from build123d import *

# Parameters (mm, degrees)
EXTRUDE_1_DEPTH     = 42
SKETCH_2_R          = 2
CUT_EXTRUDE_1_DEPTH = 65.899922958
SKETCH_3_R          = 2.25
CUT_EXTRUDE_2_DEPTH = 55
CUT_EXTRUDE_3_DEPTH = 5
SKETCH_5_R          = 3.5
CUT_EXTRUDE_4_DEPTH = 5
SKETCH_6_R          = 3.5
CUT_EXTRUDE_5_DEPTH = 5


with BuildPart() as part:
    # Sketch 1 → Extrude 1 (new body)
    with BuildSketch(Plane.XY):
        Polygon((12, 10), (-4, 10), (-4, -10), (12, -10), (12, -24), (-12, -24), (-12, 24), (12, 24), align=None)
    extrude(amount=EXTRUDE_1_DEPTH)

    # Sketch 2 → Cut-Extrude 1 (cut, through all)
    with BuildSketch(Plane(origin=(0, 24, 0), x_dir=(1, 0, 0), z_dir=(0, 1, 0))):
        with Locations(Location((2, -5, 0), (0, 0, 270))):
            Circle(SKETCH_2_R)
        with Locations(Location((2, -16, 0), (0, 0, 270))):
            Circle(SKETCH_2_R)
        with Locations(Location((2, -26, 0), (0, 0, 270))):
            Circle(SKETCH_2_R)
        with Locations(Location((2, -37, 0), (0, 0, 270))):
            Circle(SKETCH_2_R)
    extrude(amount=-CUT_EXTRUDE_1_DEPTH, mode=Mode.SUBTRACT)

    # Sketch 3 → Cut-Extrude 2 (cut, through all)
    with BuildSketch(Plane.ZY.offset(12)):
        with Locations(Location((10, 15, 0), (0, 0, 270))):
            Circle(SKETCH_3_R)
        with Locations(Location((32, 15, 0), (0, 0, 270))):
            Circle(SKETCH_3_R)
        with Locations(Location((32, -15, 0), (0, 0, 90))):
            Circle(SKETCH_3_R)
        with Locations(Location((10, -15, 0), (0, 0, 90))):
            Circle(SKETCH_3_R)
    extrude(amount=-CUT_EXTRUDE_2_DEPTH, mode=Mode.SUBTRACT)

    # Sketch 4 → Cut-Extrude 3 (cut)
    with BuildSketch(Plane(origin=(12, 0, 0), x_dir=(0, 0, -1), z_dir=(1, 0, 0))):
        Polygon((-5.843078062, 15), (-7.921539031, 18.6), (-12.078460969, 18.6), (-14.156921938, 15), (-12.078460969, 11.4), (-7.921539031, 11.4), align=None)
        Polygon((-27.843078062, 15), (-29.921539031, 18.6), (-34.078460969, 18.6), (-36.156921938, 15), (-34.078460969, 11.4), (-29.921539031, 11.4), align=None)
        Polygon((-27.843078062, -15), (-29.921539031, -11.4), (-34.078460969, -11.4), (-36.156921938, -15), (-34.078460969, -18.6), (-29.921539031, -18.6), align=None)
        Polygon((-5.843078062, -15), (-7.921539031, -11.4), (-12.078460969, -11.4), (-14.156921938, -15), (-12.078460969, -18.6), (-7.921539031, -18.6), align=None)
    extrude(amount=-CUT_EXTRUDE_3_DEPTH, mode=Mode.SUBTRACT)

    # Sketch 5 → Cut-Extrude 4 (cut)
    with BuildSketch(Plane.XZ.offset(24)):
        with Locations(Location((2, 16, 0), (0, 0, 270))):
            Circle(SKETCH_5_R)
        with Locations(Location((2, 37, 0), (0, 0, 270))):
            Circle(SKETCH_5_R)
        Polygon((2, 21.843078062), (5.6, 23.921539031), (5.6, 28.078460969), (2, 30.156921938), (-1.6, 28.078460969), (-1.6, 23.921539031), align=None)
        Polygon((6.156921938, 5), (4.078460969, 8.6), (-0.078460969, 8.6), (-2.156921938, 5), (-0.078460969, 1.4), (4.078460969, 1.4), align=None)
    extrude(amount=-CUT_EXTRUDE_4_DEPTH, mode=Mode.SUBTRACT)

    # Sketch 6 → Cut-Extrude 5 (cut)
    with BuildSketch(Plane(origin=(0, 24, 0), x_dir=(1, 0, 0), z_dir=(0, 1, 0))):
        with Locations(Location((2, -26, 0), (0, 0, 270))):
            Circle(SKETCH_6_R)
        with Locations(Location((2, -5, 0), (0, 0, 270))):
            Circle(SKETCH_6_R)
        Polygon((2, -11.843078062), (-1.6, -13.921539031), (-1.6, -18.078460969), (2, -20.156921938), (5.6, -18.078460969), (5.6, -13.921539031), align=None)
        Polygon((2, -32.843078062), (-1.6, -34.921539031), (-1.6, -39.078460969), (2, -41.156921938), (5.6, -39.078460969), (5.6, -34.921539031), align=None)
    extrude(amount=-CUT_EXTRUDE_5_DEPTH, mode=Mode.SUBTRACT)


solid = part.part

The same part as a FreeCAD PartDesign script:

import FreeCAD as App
import Part
import Sketcher

V = App.Vector
Q = App.Units.Quantity

doc = App.newDocument("Part")
params = doc.addObject("Spreadsheet::Sheet", "Params")
for row, (alias, value) in enumerate([
    ("sketch1_width", "16 mm"),
    ("sketch1_width2", "24 mm"),
    ("sketch1_height", "14 mm"),
    ("sketch1_height2", "48 mm"),
    ("pad1_length", "42 mm"),
    ("sketch2_diameter", "4 mm"),
    ("sketch3_diameter", "4.5 mm"),
    ("pocket3_length", "5 mm"),
    ("sketch5_diameter", "7 mm"),
    ("pocket4_length", "5 mm"),
    ("sketch6_diameter", "7 mm"),
    ("pocket5_length", "5 mm"),
], start=1):
    params.set(f"A{row}", alias)
    params.set(f"B{row}", "=" + value)
    params.setAlias(f"B{row}", alias)

body = doc.addObject("PartDesign::Body", "Body")

# Sketch on XY plane
sketch1 = body.newObject("Sketcher::SketchObject", "Sketch")
sketch1.AttachmentSupport = (doc.getObject("XY_Plane"), [""])
sketch1.MapMode = "FlatFace"
sketch1.addGeometry(Part.LineSegment(V(-4, 10, 0), V(12, 10, 0)), False)
sketch1.addGeometry(Part.LineSegment(V(12, 10, 0), V(12, 24, 0)), False)
sketch1.addGeometry(Part.LineSegment(V(12, 24, 0), V(-12, 24, 0)), False)
sketch1.addGeometry(Part.LineSegment(V(-12, 24, 0), V(-12, -24, 0)), False)
sketch1.addGeometry(Part.LineSegment(V(-12, -24, 0), V(12, -24, 0)), False)
sketch1.addGeometry(Part.LineSegment(V(12, -24, 0), V(12, -10, 0)), False)
sketch1.addGeometry(Part.LineSegment(V(12, -10, 0), V(-4, -10, 0)), False)
sketch1.addGeometry(Part.LineSegment(V(-4, -10, 0), V(-4, 10, 0)), False)
sketch1.addConstraint(Sketcher.Constraint("Coincident", 0, 2, 1, 1))
sketch1.addConstraint(Sketcher.Constraint("Coincident", 1, 2, 2, 1))
sketch1.addConstraint(Sketcher.Constraint("Coincident", 2, 2, 3, 1))
sketch1.addConstraint(Sketcher.Constraint("Coincident", 3, 2, 4, 1))
sketch1.addConstraint(Sketcher.Constraint("Coincident", 4, 2, 5, 1))
sketch1.addConstraint(Sketcher.Constraint("Coincident", 5, 2, 6, 1))
sketch1.addConstraint(Sketcher.Constraint("Coincident", 6, 2, 7, 1))
sketch1.addConstraint(Sketcher.Constraint("Coincident", 7, 2, 0, 1))
sketch1.addConstraint(Sketcher.Constraint("Horizontal", 0))
sketch1.addConstraint(Sketcher.Constraint("Vertical", 1))
sketch1.addConstraint(Sketcher.Constraint("Horizontal", 2))
sketch1.addConstraint(Sketcher.Constraint("Vertical", 3))
sketch1.addConstraint(Sketcher.Constraint("Horizontal", 4))
sketch1.addConstraint(Sketcher.Constraint("Vertical", 5))
sketch1.addConstraint(Sketcher.Constraint("Horizontal", 6))
sketch1.addConstraint(Sketcher.Constraint("Vertical", 7))
sketch1.addConstraint(Sketcher.Constraint("Symmetric", 1, 2, 3, 2, -1, 1))
sketch1.addConstraint(Sketcher.Constraint("Symmetric", 0, 2, 5, 2, -1))
sketch1.addConstraint(Sketcher.Constraint("DistanceX", 0, 1, 0, 2, Q("16 mm")))
sketch1.addConstraint(Sketcher.Constraint("DistanceX", 2, 2, 2, 1, Q("24 mm")))
sketch1.addConstraint(Sketcher.Constraint("DistanceY", 1, 1, 1, 2, Q("14 mm")))
sketch1.addConstraint(Sketcher.Constraint("DistanceY", 3, 2, 3, 1, Q("48 mm")))
sketch1.setExpression("Constraints[18]", "Params.sketch1_width")
sketch1.setExpression("Constraints[19]", "Params.sketch1_width2")
sketch1.setExpression("Constraints[20]", "Params.sketch1_height")
sketch1.setExpression("Constraints[21]", "Params.sketch1_height2")
pad1 = body.newObject("PartDesign::Pad", "Pad")
pad1.Profile = sketch1
pad1.setExpression("Length", "Params.pad1_length")

# Sketch on XZ plane
sketch2 = body.newObject("Sketcher::SketchObject", "Sketch001")
sketch2.AttachmentSupport = (doc.getObject("XZ_Plane"), [""])
sketch2.MapMode = "FlatFace"
sketch2.AttachmentOffset = App.Placement(V(0, 0, -24), App.Rotation())
sketch2.addGeometry(Part.Circle(V(2, 5, 0), V(0, 0, 1), 2), False)
sketch2.addGeometry(Part.Circle(V(2, 16, 0), V(0, 0, 1), 2), False)
sketch2.addGeometry(Part.Circle(V(2, 26, 0), V(0, 0, 1), 2), False)
sketch2.addGeometry(Part.Circle(V(2, 37, 0), V(0, 0, 1), 2), False)
sketch2.addConstraint(Sketcher.Constraint("Equal", 0, 1))
sketch2.addConstraint(Sketcher.Constraint("Equal", 1, 2))
sketch2.addConstraint(Sketcher.Constraint("Equal", 2, 3))
sketch2.addConstraint(Sketcher.Constraint("Vertical", 0, 3, 1, 3))
sketch2.addConstraint(Sketcher.Constraint("Vertical", 1, 3, 2, 3))
sketch2.addConstraint(Sketcher.Constraint("Vertical", 2, 3, 3, 3))
sketch2.addConstraint(Sketcher.Constraint("Diameter", 0, Q("4 mm")))
sketch2.addConstraint(Sketcher.Constraint("DistanceX", -1, 1, 0, 3, Q("2 mm")))
sketch2.addConstraint(Sketcher.Constraint("DistanceY", -1, 1, 0, 3, Q("5 mm")))
sketch2.addConstraint(Sketcher.Constraint("DistanceY", -1, 1, 1, 3, Q("16 mm")))
sketch2.addConstraint(Sketcher.Constraint("DistanceY", -1, 1, 2, 3, Q("26 mm")))
sketch2.addConstraint(Sketcher.Constraint("DistanceY", -1, 1, 3, 3, Q("37 mm")))
sketch2.setExpression("Constraints[6]", "Params.sketch2_diameter")
pocket1 = body.newObject("PartDesign::Pocket", "Pocket")
pocket1.Profile = sketch2
pocket1.Type = "ThroughAll"
pocket1.Reversed = True

# Sketch on YZ plane
sketch3 = body.newObject("Sketcher::SketchObject", "Sketch002")
sketch3.AttachmentSupport = (doc.getObject("YZ_Plane"), [""])
sketch3.MapMode = "FlatFace"
sketch3.AttachmentOffset = App.Placement(V(0, 0, -12), App.Rotation())
sketch3.addGeometry(Part.Circle(V(15, 10, 0), V(0, 0, 1), 2.2), False)
sketch3.addGeometry(Part.Circle(V(15, 32, 0), V(0, 0, 1), 2.2), False)
sketch3.addGeometry(Part.Circle(V(-15, 32, 0), V(0, 0, 1), 2.2), False)
sketch3.addGeometry(Part.Circle(V(-15, 10, 0), V(0, 0, 1), 2.2), False)
sketch3.addConstraint(Sketcher.Constraint("Equal", 0, 1))
sketch3.addConstraint(Sketcher.Constraint("Equal", 1, 2))
sketch3.addConstraint(Sketcher.Constraint("Equal", 2, 3))
sketch3.addConstraint(Sketcher.Constraint("Symmetric", 1, 3, 2, 3, -2))
sketch3.addConstraint(Sketcher.Constraint("Symmetric", 0, 3, 3, 3, -2))
sketch3.addConstraint(Sketcher.Constraint("Vertical", 0, 3, 1, 3))
sketch3.addConstraint(Sketcher.Constraint("Diameter", 0, Q("4.5 mm")))
sketch3.addConstraint(Sketcher.Constraint("DistanceX", -1, 1, 0, 3, Q("15 mm")))
sketch3.addConstraint(Sketcher.Constraint("DistanceY", -1, 1, 0, 3, Q("10 mm")))
sketch3.addConstraint(Sketcher.Constraint("DistanceY", -1, 1, 1, 3, Q("32 mm")))
sketch3.setExpression("Constraints[6]", "Params.sketch3_diameter")
pocket2 = body.newObject("PartDesign::Pocket", "Pocket001")
pocket2.Profile = sketch3
pocket2.Type = "ThroughAll"
pocket2.Reversed = True

# Sketch on YZ plane
sketch4 = body.newObject("Sketcher::SketchObject", "Sketch003")
sketch4.AttachmentSupport = (doc.getObject("YZ_Plane"), [""])
sketch4.MapMode = "FlatFace"
sketch4.AttachmentOffset = App.Placement(V(0, 0, 12), App.Rotation())
sketch4.addGeometry(Part.LineSegment(V(15, 5.8, 0), V(18.6, 7.9, 0)), False)
sketch4.addGeometry(Part.LineSegment(V(18.6, 7.9, 0), V(18.6, 12.1, 0)), False)
sketch4.addGeometry(Part.LineSegment(V(18.6, 12.1, 0), V(15, 14.2, 0)), False)
sketch4.addGeometry(Part.LineSegment(V(15, 14.2, 0), V(11.4, 12.1, 0)), False)
sketch4.addGeometry(Part.LineSegment(V(11.4, 12.1, 0), V(11.4, 7.9, 0)), False)
sketch4.addGeometry(Part.LineSegment(V(11.4, 7.9, 0), V(15, 5.8, 0)), False)
sketch4.addGeometry(Part.LineSegment(V(15, 27.8, 0), V(18.6, 29.9, 0)), False)
sketch4.addGeometry(Part.LineSegment(V(18.6, 29.9, 0), V(18.6, 34.1, 0)), False)
sketch4.addGeometry(Part.LineSegment(V(18.6, 34.1, 0), V(15, 36.2, 0)), False)
sketch4.addGeometry(Part.LineSegment(V(15, 36.2, 0), V(11.4, 34.1, 0)), False)
sketch4.addGeometry(Part.LineSegment(V(11.4, 34.1, 0), V(11.4, 29.9, 0)), False)
sketch4.addGeometry(Part.LineSegment(V(11.4, 29.9, 0), V(15, 27.8, 0)), False)
sketch4.addGeometry(Part.LineSegment(V(-15, 27.8, 0), V(-11.4, 29.9, 0)), False)
sketch4.addGeometry(Part.LineSegment(V(-11.4, 29.9, 0), V(-11.4, 34.1, 0)), False)
sketch4.addGeometry(Part.LineSegment(V(-11.4, 34.1, 0), V(-15, 36.2, 0)), False)
sketch4.addGeometry(Part.LineSegment(V(-15, 36.2, 0), V(-18.6, 34.1, 0)), False)
sketch4.addGeometry(Part.LineSegment(V(-18.6, 34.1, 0), V(-18.6, 29.9, 0)), False)
sketch4.addGeometry(Part.LineSegment(V(-18.6, 29.9, 0), V(-15, 27.8, 0)), False)
sketch4.addGeometry(Part.LineSegment(V(-15, 5.8, 0), V(-11.4, 7.9, 0)), False)
sketch4.addGeometry(Part.LineSegment(V(-11.4, 7.9, 0), V(-11.4, 12.1, 0)), False)
sketch4.addGeometry(Part.LineSegment(V(-11.4, 12.1, 0), V(-15, 14.2, 0)), False)
sketch4.addGeometry(Part.LineSegment(V(-15, 14.2, 0), V(-18.6, 12.1, 0)), False)
sketch4.addGeometry(Part.LineSegment(V(-18.6, 12.1, 0), V(-18.6, 7.9, 0)), False)
sketch4.addGeometry(Part.LineSegment(V(-18.6, 7.9, 0), V(-15, 5.8, 0)), False)
sketch4.addConstraint(Sketcher.Constraint("Coincident", 0, 2, 1, 1))
sketch4.addConstraint(Sketcher.Constraint("Coincident", 1, 2, 2, 1))
sketch4.addConstraint(Sketcher.Constraint("Coincident", 2, 2, 3, 1))
sketch4.addConstraint(Sketcher.Constraint("Coincident", 3, 2, 4, 1))
sketch4.addConstraint(Sketcher.Constraint("Coincident", 4, 2, 5, 1))
sketch4.addConstraint(Sketcher.Constraint("Coincident", 5, 2, 0, 1))
sketch4.addConstraint(Sketcher.Constraint("Coincident", 6, 2, 7, 1))
sketch4.addConstraint(Sketcher.Constraint("Coincident", 7, 2, 8, 1))
sketch4.addConstraint(Sketcher.Constraint("Coincident", 8, 2, 9, 1))
sketch4.addConstraint(Sketcher.Constraint("Coincident", 9, 2, 10, 1))
sketch4.addConstraint(Sketcher.Constraint("Coincident", 10, 2, 11, 1))
sketch4.addConstraint(Sketcher.Constraint("Coincident", 11, 2, 6, 1))
sketch4.addConstraint(Sketcher.Constraint("Coincident", 12, 2, 13, 1))
sketch4.addConstraint(Sketcher.Constraint("Coincident", 13, 2, 14, 1))
sketch4.addConstraint(Sketcher.Constraint("Coincident", 14, 2, 15, 1))
sketch4.addConstraint(Sketcher.Constraint("Coincident", 15, 2, 16, 1))
sketch4.addConstraint(Sketcher.Constraint("Coincident", 16, 2, 17, 1))
sketch4.addConstraint(Sketcher.Constraint("Coincident", 17, 2, 12, 1))
sketch4.addConstraint(Sketcher.Constraint("Coincident", 18, 2, 19, 1))
sketch4.addConstraint(Sketcher.Constraint("Coincident", 19, 2, 20, 1))
sketch4.addConstraint(Sketcher.Constraint("Coincident", 20, 2, 21, 1))
sketch4.addConstraint(Sketcher.Constraint("Coincident", 21, 2, 22, 1))
sketch4.addConstraint(Sketcher.Constraint("Coincident", 22, 2, 23, 1))
sketch4.addConstraint(Sketcher.Constraint("Coincident", 23, 2, 18, 1))
sketch4.addConstraint(Sketcher.Constraint("Vertical", 1))
sketch4.addConstraint(Sketcher.Constraint("Vertical", 4))
sketch4.addConstraint(Sketcher.Constraint("Vertical", 7))
sketch4.addConstraint(Sketcher.Constraint("Vertical", 10))
sketch4.addConstraint(Sketcher.Constraint("Vertical", 13))
sketch4.addConstraint(Sketcher.Constraint("Vertical", 16))
sketch4.addConstraint(Sketcher.Constraint("Vertical", 19))
sketch4.addConstraint(Sketcher.Constraint("Vertical", 22))
sketch4.addConstraint(Sketcher.Constraint("Symmetric", 10, 2, 12, 2, -2))
sketch4.addConstraint(Sketcher.Constraint("Symmetric", 8, 2, 14, 2, -2))
sketch4.addConstraint(Sketcher.Constraint("Symmetric", 7, 2, 15, 2, -2))
sketch4.addConstraint(Sketcher.Constraint("Symmetric", 11, 2, 17, 2, -2))
sketch4.addConstraint(Sketcher.Constraint("Symmetric", 4, 2, 18, 2, -2))
sketch4.addConstraint(Sketcher.Constraint("Symmetric", 2, 2, 20, 2, -2))
sketch4.addConstraint(Sketcher.Constraint("Symmetric", 1, 2, 21, 2, -2))
sketch4.addConstraint(Sketcher.Constraint("Symmetric", 5, 2, 23, 2, -2))
sketch4.addConstraint(Sketcher.Constraint("Parallel", 0, 3))
sketch4.addConstraint(Sketcher.Constraint("Parallel", 2, 5))
sketch4.addConstraint(Sketcher.Constraint("Parallel", 3, 6))
sketch4.addConstraint(Sketcher.Constraint("Parallel", 5, 8))
sketch4.addConstraint(Sketcher.Constraint("Parallel", 6, 9))
sketch4.addConstraint(Sketcher.Constraint("Parallel", 8, 11))
sketch4.addConstraint(Sketcher.Constraint("Parallel", 9, 12))
sketch4.addConstraint(Sketcher.Constraint("Parallel", 11, 14))
sketch4.addConstraint(Sketcher.Constraint("Parallel", 14, 17))
sketch4.addConstraint(Sketcher.Constraint("Parallel", 17, 20))
sketch4.addConstraint(Sketcher.Constraint("Parallel", 20, 23))
sketch4.addConstraint(Sketcher.Constraint("Horizontal", 1, 2, 3, 2))
sketch4.addConstraint(Sketcher.Constraint("Horizontal", 0, 2, 4, 2))
sketch4.addConstraint(Sketcher.Constraint("Horizontal", 7, 2, 9, 2))
sketch4.addConstraint(Sketcher.Constraint("Horizontal", 6, 2, 10, 2))
sketch4.addConstraint(Sketcher.Constraint("Vertical", 1, 2, 6, 2))
sketch4.addConstraint(Sketcher.Constraint("Vertical", 5, 2, 8, 2))
sketch4.addConstraint(Sketcher.Constraint("Equal", 4, 7))
sketch4.addConstraint(Sketcher.Constraint("Angle", 0, Q("30 deg")))
sketch4.addConstraint(Sketcher.Constraint("DistanceX", -1, 1, 2, 2, Q("15 mm")))
sketch4.addConstraint(Sketcher.Constraint("DistanceY", 0, 2, 6, 2, Q("22 mm")))
sketch4.addConstraint(Sketcher.Constraint("DistanceX", -1, 1, 0, 2, Q("18.6 mm")))
sketch4.addConstraint(Sketcher.Constraint("DistanceY", 1, 1, 1, 2, Q("4.156922 mm")))
sketch4.addConstraint(Sketcher.Constraint("DistanceY", -1, 1, 0, 2, Q("7.921539 mm")))
pocket3 = body.newObject("PartDesign::Pocket", "Pocket002")
pocket3.Profile = sketch4
pocket3.setExpression("Length", "Params.pocket3_length")

# Sketch on XZ plane
sketch5 = body.newObject("Sketcher::SketchObject", "Sketch004")
sketch5.AttachmentSupport = (doc.getObject("XZ_Plane"), [""])
sketch5.MapMode = "FlatFace"
sketch5.AttachmentOffset = App.Placement(V(0, 0, 24), App.Rotation())
sketch5.addGeometry(Part.Circle(V(2, 16, 0), V(0, 0, 1), 3.5), False)
sketch5.addGeometry(Part.Circle(V(2, 37, 0), V(0, 0, 1), 3.5), False)
sketch5.addGeometry(Part.LineSegment(V(2, 21.8, 0), V(5.6, 23.9, 0)), False)
sketch5.addGeometry(Part.LineSegment(V(5.6, 23.9, 0), V(5.6, 28.1, 0)), False)
sketch5.addGeometry(Part.LineSegment(V(5.6, 28.1, 0), V(2, 30.2, 0)), False)
sketch5.addGeometry(Part.LineSegment(V(2, 30.2, 0), V(-1.6, 28.1, 0)), False)
sketch5.addGeometry(Part.LineSegment(V(-1.6, 28.1, 0), V(-1.6, 23.9, 0)), False)
sketch5.addGeometry(Part.LineSegment(V(-1.6, 23.9, 0), V(2, 21.8, 0)), False)
sketch5.addGeometry(Part.LineSegment(V(6.2, 5, 0), V(4.1, 8.6, 0)), False)
sketch5.addGeometry(Part.LineSegment(V(4.1, 8.6, 0), V(-0.1, 8.6, 0)), False)
sketch5.addGeometry(Part.LineSegment(V(-0.1, 8.6, 0), V(-2.2, 5, 0)), False)
sketch5.addGeometry(Part.LineSegment(V(-2.2, 5, 0), V(-0.1, 1.4, 0)), False)
sketch5.addGeometry(Part.LineSegment(V(-0.1, 1.4, 0), V(4.1, 1.4, 0)), False)
sketch5.addGeometry(Part.LineSegment(V(4.1, 1.4, 0), V(6.2, 5, 0)), False)
sketch5.addConstraint(Sketcher.Constraint("Coincident", 2, 2, 3, 1))
sketch5.addConstraint(Sketcher.Constraint("Coincident", 3, 2, 4, 1))
sketch5.addConstraint(Sketcher.Constraint("Coincident", 4, 2, 5, 1))
sketch5.addConstraint(Sketcher.Constraint("Coincident", 5, 2, 6, 1))
sketch5.addConstraint(Sketcher.Constraint("Coincident", 6, 2, 7, 1))
sketch5.addConstraint(Sketcher.Constraint("Coincident", 7, 2, 2, 1))
sketch5.addConstraint(Sketcher.Constraint("Coincident", 8, 2, 9, 1))
sketch5.addConstraint(Sketcher.Constraint("Coincident", 9, 2, 10, 1))
sketch5.addConstraint(Sketcher.Constraint("Coincident", 10, 2, 11, 1))
sketch5.addConstraint(Sketcher.Constraint("Coincident", 11, 2, 12, 1))
sketch5.addConstraint(Sketcher.Constraint("Coincident", 12, 2, 13, 1))
sketch5.addConstraint(Sketcher.Constraint("Coincident", 13, 2, 8, 1))
sketch5.addConstraint(Sketcher.Constraint("Vertical", 3))
sketch5.addConstraint(Sketcher.Constraint("Vertical", 6))
sketch5.addConstraint(Sketcher.Constraint("Horizontal", 9))
sketch5.addConstraint(Sketcher.Constraint("Horizontal", 12))
sketch5.addConstraint(Sketcher.Constraint("Equal", 0, 1))
sketch5.addConstraint(Sketcher.Constraint("Parallel", 2, 5))
sketch5.addConstraint(Sketcher.Constraint("Parallel", 4, 7))
sketch5.addConstraint(Sketcher.Constraint("Perpendicular", 5, 8))
sketch5.addConstraint(Sketcher.Constraint("Perpendicular", 7, 10))
sketch5.addConstraint(Sketcher.Constraint("Parallel", 8, 11))
sketch5.addConstraint(Sketcher.Constraint("Parallel", 10, 13))
sketch5.addConstraint(Sketcher.Constraint("Horizontal", 3, 2, 5, 2))
sketch5.addConstraint(Sketcher.Constraint("Horizontal", 2, 2, 6, 2))
sketch5.addConstraint(Sketcher.Constraint("Horizontal", 10, 2, 13, 2))
sketch5.addConstraint(Sketcher.Constraint("Vertical", 0, 3, 1, 3))
sketch5.addConstraint(Sketcher.Constraint("Vertical", 1, 3, 4, 2))
sketch5.addConstraint(Sketcher.Constraint("Vertical", 4, 2, 7, 2))
sketch5.addConstraint(Sketcher.Constraint("Vertical", 9, 2, 11, 2))
sketch5.addConstraint(Sketcher.Constraint("Equal", 12, 3))
sketch5.addConstraint(Sketcher.Constraint("Equal", 7, 8))
sketch5.addConstraint(Sketcher.Constraint("Diameter", 0, Q("7 mm")))
sketch5.addConstraint(Sketcher.Constraint("Angle", 2, Q("30 deg")))
sketch5.addConstraint(Sketcher.Constraint("DistanceX", -1, 1, 0, 3, Q("2 mm")))
sketch5.addConstraint(Sketcher.Constraint("DistanceY", -1, 1, 0, 3, Q("16 mm")))
sketch5.addConstraint(Sketcher.Constraint("DistanceY", -1, 1, 1, 3, Q("37 mm")))
sketch5.addConstraint(Sketcher.Constraint("DistanceY", -1, 1, 10, 2, Q("5 mm")))
sketch5.addConstraint(Sketcher.Constraint("DistanceX", -1, 1, 2, 2, Q("5.6 mm")))
sketch5.addConstraint(Sketcher.Constraint("DistanceX", 9, 2, 9, 1, Q("4.156922 mm")))
sketch5.addConstraint(Sketcher.Constraint("DistanceY", -1, 1, 2, 2, Q("23.921539 mm")))
sketch5.addConstraint(Sketcher.Constraint("DistanceX", -1, 1, 8, 2, Q("4.078461 mm")))
sketch5.setExpression("Constraints[32]", "Params.sketch5_diameter")
pocket4 = body.newObject("PartDesign::Pocket", "Pocket003")
pocket4.Profile = sketch5
pocket4.setExpression("Length", "Params.pocket4_length")

# Sketch on XZ plane
sketch6 = body.newObject("Sketcher::SketchObject", "Sketch005")
sketch6.AttachmentSupport = (doc.getObject("XZ_Plane"), [""])
sketch6.MapMode = "FlatFace"
sketch6.AttachmentOffset = App.Placement(V(0, 0, -24), App.Rotation())
sketch6.addGeometry(Part.Circle(V(2, 26, 0), V(0, 0, 1), 3.5), False)
sketch6.addGeometry(Part.Circle(V(2, 5, 0), V(0, 0, 1), 3.5), False)
sketch6.addGeometry(Part.LineSegment(V(2, 11.8, 0), V(-1.6, 13.9, 0)), False)
sketch6.addGeometry(Part.LineSegment(V(-1.6, 13.9, 0), V(-1.6, 18.1, 0)), False)
sketch6.addGeometry(Part.LineSegment(V(-1.6, 18.1, 0), V(2, 20.2, 0)), False)
sketch6.addGeometry(Part.LineSegment(V(2, 20.2, 0), V(5.6, 18.1, 0)), False)
sketch6.addGeometry(Part.LineSegment(V(5.6, 18.1, 0), V(5.6, 13.9, 0)), False)
sketch6.addGeometry(Part.LineSegment(V(5.6, 13.9, 0), V(2, 11.8, 0)), False)
sketch6.addGeometry(Part.LineSegment(V(2, 32.8, 0), V(-1.6, 34.9, 0)), False)
sketch6.addGeometry(Part.LineSegment(V(-1.6, 34.9, 0), V(-1.6, 39.1, 0)), False)
sketch6.addGeometry(Part.LineSegment(V(-1.6, 39.1, 0), V(2, 41.2, 0)), False)
sketch6.addGeometry(Part.LineSegment(V(2, 41.2, 0), V(5.6, 39.1, 0)), False)
sketch6.addGeometry(Part.LineSegment(V(5.6, 39.1, 0), V(5.6, 34.9, 0)), False)
sketch6.addGeometry(Part.LineSegment(V(5.6, 34.9, 0), V(2, 32.8, 0)), False)
sketch6.addConstraint(Sketcher.Constraint("Coincident", 2, 2, 3, 1))
sketch6.addConstraint(Sketcher.Constraint("Coincident", 3, 2, 4, 1))
sketch6.addConstraint(Sketcher.Constraint("Coincident", 4, 2, 5, 1))
sketch6.addConstraint(Sketcher.Constraint("Coincident", 5, 2, 6, 1))
sketch6.addConstraint(Sketcher.Constraint("Coincident", 6, 2, 7, 1))
sketch6.addConstraint(Sketcher.Constraint("Coincident", 7, 2, 2, 1))
sketch6.addConstraint(Sketcher.Constraint("Coincident", 8, 2, 9, 1))
sketch6.addConstraint(Sketcher.Constraint("Coincident", 9, 2, 10, 1))
sketch6.addConstraint(Sketcher.Constraint("Coincident", 10, 2, 11, 1))
sketch6.addConstraint(Sketcher.Constraint("Coincident", 11, 2, 12, 1))
sketch6.addConstraint(Sketcher.Constraint("Coincident", 12, 2, 13, 1))
sketch6.addConstraint(Sketcher.Constraint("Coincident", 13, 2, 8, 1))
sketch6.addConstraint(Sketcher.Constraint("Vertical", 3))
sketch6.addConstraint(Sketcher.Constraint("Vertical", 6))
sketch6.addConstraint(Sketcher.Constraint("Vertical", 9))
sketch6.addConstraint(Sketcher.Constraint("Vertical", 12))
sketch6.addConstraint(Sketcher.Constraint("Equal", 0, 1))
sketch6.addConstraint(Sketcher.Constraint("Parallel", 2, 5))
sketch6.addConstraint(Sketcher.Constraint("Parallel", 4, 7))
sketch6.addConstraint(Sketcher.Constraint("Parallel", 5, 8))
sketch6.addConstraint(Sketcher.Constraint("Parallel", 7, 10))
sketch6.addConstraint(Sketcher.Constraint("Parallel", 8, 11))
sketch6.addConstraint(Sketcher.Constraint("Parallel", 10, 13))
sketch6.addConstraint(Sketcher.Constraint("Horizontal", 3, 2, 5, 2))
sketch6.addConstraint(Sketcher.Constraint("Horizontal", 2, 2, 6, 2))
sketch6.addConstraint(Sketcher.Constraint("Horizontal", 9, 2, 11, 2))
sketch6.addConstraint(Sketcher.Constraint("Horizontal", 8, 2, 12, 2))
sketch6.addConstraint(Sketcher.Constraint("Vertical", 0, 3, 1, 3))
sketch6.addConstraint(Sketcher.Constraint("Vertical", 1, 3, 4, 2))
sketch6.addConstraint(Sketcher.Constraint("Vertical", 4, 2, 7, 2))
sketch6.addConstraint(Sketcher.Constraint("Vertical", 3, 2, 8, 2))
sketch6.addConstraint(Sketcher.Constraint("Vertical", 7, 2, 10, 2))
sketch6.addConstraint(Sketcher.Constraint("Equal", 6, 9))
sketch6.addConstraint(Sketcher.Constraint("Diameter", 0, Q("7 mm")))
sketch6.addConstraint(Sketcher.Constraint("Angle", 2, Q("150 deg")))
sketch6.addConstraint(Sketcher.Constraint("DistanceX", -1, 1, 0, 3, Q("2 mm")))
sketch6.addConstraint(Sketcher.Constraint("DistanceY", -1, 1, 0, 3, Q("26 mm")))
sketch6.addConstraint(Sketcher.Constraint("DistanceY", -1, 1, 1, 3, Q("5 mm")))
sketch6.addConstraint(Sketcher.Constraint("DistanceY", 2, 2, 8, 2, Q("21 mm")))
sketch6.addConstraint(Sketcher.Constraint("DistanceX", 2, 2, -1, 1, Q("1.6 mm")))
sketch6.addConstraint(Sketcher.Constraint("DistanceY", 3, 1, 3, 2, Q("4.156922 mm")))
sketch6.addConstraint(Sketcher.Constraint("DistanceY", -1, 1, 2, 2, Q("13.921539 mm")))
sketch6.setExpression("Constraints[33]", "Params.sketch6_diameter")
pocket5 = body.newObject("PartDesign::Pocket", "Pocket004")
pocket5.Profile = sketch6
pocket5.setExpression("Length", "Params.pocket5_length")
pocket5.Reversed = True

doc.recompute()
